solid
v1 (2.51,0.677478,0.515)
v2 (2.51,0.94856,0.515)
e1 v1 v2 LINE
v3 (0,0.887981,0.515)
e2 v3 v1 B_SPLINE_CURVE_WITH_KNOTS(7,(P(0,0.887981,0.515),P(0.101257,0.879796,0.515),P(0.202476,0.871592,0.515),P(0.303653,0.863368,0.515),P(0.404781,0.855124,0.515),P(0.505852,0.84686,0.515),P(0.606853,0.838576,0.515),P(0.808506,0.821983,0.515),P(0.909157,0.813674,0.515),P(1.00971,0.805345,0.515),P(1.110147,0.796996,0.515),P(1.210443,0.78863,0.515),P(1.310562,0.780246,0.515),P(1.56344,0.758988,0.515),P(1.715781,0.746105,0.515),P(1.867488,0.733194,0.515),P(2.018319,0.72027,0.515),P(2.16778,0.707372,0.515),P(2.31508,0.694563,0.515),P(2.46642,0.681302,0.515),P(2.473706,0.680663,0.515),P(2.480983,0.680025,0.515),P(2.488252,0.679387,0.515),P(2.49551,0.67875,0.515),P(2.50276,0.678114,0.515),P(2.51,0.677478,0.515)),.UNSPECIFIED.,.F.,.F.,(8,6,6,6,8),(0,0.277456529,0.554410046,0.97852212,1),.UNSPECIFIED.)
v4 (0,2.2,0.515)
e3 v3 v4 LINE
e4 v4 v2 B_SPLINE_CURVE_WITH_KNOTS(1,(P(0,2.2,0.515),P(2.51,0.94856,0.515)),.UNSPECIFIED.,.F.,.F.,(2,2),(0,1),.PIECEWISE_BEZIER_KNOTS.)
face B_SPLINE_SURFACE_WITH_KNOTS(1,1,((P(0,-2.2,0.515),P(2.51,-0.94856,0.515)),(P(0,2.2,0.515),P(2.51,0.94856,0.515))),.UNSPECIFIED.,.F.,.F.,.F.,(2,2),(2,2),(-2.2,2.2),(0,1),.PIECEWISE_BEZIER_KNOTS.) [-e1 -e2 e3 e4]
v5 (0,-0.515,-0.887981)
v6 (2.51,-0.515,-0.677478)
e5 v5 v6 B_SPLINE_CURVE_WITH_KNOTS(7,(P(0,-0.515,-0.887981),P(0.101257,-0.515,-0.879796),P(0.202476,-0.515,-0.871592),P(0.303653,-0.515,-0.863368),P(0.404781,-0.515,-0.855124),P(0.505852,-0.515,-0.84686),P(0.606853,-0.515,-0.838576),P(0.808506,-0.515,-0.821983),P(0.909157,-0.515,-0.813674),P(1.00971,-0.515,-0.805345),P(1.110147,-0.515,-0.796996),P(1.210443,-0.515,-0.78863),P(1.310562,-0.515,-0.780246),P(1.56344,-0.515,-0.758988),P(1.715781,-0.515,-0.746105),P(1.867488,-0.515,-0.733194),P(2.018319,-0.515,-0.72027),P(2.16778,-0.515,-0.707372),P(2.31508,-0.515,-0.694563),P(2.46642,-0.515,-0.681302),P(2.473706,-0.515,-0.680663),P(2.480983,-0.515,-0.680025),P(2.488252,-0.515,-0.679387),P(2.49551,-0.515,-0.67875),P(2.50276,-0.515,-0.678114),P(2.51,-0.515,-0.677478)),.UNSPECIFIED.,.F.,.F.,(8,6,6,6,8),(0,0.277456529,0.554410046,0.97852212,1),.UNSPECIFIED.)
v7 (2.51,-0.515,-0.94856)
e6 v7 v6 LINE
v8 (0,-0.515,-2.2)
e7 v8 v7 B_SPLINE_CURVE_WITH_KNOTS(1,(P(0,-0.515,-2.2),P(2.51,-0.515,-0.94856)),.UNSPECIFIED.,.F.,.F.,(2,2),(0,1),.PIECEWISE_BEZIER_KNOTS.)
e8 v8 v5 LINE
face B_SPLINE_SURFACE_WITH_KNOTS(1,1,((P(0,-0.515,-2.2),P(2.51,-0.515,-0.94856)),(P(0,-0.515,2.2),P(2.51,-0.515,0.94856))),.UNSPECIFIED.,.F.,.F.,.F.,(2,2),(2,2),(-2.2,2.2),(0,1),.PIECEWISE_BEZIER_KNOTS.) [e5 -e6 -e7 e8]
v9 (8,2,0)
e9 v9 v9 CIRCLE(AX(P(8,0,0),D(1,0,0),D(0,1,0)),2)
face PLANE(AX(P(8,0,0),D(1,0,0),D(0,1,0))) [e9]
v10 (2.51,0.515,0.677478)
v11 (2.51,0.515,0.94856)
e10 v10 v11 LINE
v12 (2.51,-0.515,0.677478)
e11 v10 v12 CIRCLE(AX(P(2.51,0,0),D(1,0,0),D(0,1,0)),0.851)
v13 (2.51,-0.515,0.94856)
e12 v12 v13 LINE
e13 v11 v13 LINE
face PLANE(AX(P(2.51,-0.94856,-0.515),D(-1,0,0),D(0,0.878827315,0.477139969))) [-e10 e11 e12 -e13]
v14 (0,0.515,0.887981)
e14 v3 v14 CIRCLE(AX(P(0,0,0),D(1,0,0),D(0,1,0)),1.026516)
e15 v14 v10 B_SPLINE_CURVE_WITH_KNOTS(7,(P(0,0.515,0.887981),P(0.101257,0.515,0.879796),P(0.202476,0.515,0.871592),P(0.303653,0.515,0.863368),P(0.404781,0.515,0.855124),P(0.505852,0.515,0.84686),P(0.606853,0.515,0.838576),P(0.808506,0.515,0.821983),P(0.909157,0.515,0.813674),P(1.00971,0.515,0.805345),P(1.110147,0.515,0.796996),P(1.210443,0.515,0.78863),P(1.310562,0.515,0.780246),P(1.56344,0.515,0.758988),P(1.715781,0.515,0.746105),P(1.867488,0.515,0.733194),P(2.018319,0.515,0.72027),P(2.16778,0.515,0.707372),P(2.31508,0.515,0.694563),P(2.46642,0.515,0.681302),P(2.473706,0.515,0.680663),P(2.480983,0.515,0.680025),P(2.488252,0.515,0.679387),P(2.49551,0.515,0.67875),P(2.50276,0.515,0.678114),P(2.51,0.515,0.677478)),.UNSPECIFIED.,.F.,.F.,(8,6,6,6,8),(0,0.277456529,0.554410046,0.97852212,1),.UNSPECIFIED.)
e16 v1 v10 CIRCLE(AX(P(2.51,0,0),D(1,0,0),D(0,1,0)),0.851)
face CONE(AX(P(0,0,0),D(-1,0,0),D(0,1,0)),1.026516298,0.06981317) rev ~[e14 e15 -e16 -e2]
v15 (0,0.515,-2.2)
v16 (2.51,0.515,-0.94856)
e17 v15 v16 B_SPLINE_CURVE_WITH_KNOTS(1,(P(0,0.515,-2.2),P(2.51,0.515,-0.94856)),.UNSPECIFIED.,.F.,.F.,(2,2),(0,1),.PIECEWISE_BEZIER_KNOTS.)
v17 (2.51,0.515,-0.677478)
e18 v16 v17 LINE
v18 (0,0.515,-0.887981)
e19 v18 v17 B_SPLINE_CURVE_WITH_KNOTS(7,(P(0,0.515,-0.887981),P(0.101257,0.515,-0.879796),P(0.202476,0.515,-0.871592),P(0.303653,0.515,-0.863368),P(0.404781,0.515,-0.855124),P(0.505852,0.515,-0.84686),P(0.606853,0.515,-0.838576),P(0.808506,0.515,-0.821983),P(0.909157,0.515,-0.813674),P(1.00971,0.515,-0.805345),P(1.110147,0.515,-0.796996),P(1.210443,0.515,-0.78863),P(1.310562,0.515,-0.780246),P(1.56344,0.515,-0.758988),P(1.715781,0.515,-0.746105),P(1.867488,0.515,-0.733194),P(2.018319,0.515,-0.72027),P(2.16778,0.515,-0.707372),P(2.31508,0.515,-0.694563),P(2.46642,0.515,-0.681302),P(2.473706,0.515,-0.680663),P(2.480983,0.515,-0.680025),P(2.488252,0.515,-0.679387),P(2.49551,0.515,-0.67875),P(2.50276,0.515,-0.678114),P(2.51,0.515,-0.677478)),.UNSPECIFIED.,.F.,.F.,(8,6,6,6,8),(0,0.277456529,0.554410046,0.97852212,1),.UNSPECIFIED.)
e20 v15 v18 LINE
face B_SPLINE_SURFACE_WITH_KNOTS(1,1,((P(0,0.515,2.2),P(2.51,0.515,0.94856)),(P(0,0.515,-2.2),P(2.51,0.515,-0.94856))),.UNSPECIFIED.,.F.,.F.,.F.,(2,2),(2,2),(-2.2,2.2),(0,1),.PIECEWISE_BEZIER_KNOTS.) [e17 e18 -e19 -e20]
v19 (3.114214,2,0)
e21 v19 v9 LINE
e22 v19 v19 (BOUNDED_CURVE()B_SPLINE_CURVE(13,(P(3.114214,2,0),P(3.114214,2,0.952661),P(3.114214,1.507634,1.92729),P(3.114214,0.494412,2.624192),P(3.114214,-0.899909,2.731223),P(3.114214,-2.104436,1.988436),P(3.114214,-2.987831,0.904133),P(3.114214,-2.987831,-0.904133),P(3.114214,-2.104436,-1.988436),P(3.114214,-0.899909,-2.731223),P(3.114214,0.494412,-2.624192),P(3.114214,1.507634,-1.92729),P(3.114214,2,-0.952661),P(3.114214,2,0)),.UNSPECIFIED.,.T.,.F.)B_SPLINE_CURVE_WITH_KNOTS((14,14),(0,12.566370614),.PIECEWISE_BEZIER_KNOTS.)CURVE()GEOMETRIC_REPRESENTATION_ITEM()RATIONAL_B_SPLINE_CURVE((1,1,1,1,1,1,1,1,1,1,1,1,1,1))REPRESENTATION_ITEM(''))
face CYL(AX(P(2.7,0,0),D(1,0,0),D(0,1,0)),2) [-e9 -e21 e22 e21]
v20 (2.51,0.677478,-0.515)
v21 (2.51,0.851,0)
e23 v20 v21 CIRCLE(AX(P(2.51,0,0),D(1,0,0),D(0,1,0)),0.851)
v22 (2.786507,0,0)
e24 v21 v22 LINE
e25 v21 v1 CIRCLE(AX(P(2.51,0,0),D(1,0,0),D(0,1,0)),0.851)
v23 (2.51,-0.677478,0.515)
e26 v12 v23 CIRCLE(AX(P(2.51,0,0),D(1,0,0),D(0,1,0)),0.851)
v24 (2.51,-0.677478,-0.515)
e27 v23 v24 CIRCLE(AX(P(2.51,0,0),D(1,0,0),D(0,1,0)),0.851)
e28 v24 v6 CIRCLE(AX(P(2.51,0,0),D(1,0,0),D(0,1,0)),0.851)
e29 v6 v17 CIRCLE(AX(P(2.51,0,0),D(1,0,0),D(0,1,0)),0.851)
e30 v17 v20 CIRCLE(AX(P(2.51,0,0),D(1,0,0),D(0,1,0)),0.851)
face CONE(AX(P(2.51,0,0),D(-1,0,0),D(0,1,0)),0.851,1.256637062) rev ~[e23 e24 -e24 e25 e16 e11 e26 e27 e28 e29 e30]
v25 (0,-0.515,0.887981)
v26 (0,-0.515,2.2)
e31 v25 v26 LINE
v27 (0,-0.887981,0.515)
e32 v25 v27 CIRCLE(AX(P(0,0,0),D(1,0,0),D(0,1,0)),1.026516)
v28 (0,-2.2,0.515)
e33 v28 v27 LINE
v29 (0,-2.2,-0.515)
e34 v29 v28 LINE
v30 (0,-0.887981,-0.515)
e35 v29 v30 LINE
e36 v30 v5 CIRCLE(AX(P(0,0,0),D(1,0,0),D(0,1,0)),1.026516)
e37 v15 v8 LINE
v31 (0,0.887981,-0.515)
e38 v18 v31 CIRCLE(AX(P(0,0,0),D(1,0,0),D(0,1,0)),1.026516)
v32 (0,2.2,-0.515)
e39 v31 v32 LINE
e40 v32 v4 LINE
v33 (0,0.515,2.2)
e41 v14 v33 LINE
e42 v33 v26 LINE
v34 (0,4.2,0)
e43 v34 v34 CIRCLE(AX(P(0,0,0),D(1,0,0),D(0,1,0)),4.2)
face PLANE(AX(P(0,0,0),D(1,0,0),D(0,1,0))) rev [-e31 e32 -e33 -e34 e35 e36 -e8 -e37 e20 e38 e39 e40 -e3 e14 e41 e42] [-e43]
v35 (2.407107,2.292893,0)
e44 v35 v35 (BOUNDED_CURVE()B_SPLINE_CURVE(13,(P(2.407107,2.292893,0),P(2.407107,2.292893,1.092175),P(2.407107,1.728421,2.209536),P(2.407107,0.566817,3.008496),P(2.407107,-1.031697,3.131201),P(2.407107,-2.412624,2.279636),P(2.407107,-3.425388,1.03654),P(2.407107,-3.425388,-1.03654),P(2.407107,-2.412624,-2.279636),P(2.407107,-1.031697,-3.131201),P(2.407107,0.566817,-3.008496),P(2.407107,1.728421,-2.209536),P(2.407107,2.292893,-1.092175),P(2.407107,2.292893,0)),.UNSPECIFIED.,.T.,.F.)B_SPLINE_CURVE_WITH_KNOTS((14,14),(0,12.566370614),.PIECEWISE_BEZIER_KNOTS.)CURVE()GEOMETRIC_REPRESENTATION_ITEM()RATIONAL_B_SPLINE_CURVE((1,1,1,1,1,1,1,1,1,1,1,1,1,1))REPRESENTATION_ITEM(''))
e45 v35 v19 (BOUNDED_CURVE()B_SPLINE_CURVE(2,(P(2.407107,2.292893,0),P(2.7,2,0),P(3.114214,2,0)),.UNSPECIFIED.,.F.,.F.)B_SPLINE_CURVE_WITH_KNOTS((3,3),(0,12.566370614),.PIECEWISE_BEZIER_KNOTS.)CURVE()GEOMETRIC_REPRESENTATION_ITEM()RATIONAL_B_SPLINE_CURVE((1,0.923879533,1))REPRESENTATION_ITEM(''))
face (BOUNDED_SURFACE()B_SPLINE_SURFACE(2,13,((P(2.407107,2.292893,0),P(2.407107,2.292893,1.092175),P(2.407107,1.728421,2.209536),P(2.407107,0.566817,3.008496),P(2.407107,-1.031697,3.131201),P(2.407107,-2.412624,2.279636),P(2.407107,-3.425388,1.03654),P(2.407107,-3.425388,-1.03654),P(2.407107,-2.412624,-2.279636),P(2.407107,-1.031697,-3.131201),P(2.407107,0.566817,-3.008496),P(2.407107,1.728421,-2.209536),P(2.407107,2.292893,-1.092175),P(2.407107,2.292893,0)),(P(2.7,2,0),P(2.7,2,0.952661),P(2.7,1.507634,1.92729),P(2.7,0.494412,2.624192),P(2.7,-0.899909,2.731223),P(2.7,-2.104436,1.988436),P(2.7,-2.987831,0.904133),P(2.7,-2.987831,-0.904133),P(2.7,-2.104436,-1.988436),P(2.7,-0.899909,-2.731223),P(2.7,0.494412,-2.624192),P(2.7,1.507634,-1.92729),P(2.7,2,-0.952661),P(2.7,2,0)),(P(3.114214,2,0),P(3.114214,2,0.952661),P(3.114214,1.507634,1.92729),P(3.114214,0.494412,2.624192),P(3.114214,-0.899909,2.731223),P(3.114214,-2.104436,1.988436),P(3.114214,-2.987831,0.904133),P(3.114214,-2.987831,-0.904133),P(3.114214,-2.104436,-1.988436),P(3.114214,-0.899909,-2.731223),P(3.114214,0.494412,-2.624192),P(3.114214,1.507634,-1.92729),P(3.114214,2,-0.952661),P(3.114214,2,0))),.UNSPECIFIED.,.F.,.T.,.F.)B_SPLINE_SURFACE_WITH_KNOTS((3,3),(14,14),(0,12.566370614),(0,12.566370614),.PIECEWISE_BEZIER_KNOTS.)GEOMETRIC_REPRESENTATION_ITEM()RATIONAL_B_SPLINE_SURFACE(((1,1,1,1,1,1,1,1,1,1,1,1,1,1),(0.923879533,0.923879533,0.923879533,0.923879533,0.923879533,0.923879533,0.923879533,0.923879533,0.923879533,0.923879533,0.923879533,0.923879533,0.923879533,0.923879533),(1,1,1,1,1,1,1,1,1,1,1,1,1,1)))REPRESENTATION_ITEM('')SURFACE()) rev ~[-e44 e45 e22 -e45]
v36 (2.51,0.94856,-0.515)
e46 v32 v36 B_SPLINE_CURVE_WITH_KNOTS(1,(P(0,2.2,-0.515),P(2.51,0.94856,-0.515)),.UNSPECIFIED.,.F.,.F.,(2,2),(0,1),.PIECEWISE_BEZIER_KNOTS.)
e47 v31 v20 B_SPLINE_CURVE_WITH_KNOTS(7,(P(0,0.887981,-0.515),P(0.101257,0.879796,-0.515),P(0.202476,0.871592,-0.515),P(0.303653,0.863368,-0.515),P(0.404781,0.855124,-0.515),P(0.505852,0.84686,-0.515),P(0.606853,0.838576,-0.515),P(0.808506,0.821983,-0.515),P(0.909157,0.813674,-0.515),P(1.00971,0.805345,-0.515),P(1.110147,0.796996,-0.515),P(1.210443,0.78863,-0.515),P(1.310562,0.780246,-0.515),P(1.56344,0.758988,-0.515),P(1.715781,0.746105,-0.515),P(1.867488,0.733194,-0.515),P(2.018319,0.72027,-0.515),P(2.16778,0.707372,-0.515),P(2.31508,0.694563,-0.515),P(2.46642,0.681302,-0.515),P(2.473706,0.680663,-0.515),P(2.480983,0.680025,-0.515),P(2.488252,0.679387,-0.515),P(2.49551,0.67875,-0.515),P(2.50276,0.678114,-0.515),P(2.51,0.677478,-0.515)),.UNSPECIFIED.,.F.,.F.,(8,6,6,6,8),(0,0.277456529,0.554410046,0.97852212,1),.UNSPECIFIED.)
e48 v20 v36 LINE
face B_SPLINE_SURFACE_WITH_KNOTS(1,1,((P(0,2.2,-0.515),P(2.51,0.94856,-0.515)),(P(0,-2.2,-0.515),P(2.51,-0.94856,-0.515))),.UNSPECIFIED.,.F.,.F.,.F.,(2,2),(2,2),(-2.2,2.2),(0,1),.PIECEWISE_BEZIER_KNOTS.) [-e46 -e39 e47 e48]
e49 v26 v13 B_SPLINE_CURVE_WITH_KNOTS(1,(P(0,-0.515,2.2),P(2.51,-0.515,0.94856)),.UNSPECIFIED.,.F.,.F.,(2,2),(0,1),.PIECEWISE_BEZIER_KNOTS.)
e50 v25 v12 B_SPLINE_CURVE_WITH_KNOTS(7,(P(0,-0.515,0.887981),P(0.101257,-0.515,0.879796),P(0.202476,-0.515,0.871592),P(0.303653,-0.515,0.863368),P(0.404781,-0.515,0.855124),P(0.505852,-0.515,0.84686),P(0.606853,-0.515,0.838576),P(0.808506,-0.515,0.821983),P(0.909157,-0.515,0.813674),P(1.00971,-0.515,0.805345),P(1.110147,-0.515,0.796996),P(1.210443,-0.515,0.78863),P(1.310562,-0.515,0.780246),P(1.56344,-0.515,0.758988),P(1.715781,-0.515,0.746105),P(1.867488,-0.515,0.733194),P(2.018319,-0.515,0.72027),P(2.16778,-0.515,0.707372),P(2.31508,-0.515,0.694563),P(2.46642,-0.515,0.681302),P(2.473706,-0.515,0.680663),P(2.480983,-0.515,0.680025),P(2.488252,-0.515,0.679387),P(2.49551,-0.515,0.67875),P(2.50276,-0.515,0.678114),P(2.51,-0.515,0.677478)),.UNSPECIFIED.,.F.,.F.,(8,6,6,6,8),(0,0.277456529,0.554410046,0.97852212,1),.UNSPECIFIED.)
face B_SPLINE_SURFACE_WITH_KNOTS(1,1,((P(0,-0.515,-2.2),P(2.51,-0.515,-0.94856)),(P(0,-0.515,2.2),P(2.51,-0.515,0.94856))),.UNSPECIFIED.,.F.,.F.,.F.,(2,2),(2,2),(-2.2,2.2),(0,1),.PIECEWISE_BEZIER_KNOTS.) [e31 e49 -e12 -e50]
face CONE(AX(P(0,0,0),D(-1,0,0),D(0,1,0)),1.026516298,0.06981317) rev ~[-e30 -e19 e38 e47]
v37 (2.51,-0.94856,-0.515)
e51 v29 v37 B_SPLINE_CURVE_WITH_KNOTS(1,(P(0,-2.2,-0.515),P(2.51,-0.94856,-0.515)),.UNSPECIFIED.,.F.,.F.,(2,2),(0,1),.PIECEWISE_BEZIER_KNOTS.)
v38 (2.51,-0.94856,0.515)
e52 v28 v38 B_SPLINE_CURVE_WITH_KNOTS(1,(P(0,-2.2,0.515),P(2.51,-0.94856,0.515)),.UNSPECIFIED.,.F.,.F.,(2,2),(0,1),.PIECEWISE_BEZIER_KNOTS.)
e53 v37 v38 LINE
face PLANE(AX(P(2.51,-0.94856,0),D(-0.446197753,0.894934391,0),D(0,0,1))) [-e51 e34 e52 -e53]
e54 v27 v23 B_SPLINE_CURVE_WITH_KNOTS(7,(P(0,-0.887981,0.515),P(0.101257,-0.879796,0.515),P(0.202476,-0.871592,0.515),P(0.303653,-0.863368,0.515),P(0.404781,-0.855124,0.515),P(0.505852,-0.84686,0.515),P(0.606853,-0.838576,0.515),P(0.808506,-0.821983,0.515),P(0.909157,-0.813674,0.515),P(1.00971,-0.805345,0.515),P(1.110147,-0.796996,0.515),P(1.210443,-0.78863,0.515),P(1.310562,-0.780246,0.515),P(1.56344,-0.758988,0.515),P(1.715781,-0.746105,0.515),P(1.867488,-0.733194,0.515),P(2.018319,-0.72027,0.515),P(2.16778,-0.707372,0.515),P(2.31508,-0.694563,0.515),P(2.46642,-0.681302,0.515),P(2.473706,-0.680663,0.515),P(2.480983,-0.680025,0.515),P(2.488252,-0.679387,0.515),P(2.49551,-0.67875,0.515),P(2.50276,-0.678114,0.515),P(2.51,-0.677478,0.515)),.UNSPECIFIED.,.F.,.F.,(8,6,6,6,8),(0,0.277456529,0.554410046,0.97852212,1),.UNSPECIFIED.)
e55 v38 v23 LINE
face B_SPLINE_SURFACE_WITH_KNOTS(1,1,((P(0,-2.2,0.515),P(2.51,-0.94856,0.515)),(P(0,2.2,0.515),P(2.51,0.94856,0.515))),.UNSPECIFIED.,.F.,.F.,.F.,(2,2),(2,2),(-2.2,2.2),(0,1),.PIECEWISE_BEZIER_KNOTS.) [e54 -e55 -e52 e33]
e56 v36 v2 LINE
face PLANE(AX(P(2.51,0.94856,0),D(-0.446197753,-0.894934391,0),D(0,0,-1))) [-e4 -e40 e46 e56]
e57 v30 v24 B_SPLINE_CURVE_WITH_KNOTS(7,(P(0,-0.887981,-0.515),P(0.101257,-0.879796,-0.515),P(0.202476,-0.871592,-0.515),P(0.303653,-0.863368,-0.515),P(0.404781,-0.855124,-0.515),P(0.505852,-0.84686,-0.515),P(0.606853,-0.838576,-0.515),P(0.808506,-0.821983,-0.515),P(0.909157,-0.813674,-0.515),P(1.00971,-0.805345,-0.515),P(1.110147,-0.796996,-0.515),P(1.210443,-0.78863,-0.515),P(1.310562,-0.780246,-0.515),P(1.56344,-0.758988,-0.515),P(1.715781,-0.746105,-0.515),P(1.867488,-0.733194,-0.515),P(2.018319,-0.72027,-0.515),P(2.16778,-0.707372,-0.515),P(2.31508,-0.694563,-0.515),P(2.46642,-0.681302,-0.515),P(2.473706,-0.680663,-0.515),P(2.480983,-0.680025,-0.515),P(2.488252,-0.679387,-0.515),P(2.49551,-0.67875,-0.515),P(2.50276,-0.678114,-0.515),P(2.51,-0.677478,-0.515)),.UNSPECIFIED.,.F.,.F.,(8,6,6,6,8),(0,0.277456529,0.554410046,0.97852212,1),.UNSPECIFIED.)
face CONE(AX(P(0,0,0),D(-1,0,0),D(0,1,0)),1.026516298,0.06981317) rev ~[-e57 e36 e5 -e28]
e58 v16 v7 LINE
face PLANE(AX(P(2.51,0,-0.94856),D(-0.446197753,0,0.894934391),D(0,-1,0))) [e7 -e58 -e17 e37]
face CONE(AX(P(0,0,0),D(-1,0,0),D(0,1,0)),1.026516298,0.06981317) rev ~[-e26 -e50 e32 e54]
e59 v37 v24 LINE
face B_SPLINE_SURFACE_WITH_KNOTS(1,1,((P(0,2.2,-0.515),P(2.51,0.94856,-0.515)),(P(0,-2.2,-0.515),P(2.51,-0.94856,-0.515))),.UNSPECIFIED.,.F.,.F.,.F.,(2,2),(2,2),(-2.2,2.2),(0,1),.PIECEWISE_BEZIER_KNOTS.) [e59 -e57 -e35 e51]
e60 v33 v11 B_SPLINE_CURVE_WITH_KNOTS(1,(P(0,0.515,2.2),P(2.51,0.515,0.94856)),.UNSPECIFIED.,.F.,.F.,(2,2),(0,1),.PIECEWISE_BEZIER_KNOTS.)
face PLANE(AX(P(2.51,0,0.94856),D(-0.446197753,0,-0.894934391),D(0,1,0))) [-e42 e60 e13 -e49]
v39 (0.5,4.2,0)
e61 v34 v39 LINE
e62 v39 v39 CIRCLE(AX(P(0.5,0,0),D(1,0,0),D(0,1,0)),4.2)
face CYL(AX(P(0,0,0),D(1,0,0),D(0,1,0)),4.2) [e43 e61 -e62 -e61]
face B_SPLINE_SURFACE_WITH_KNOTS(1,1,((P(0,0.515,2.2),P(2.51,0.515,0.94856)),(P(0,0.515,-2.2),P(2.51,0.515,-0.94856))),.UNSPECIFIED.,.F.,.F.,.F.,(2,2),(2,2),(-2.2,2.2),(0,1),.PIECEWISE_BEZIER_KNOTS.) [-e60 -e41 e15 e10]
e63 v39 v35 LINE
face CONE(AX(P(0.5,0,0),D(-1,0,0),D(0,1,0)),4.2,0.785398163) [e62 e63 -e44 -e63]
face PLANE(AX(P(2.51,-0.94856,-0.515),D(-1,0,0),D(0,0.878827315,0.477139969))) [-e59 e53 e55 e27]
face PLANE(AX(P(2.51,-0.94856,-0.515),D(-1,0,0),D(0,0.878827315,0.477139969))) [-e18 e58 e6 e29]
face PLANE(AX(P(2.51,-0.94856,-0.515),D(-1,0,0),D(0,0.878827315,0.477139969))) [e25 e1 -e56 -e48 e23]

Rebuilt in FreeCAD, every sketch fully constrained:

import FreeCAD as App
import Part
import Sketcher
Q = App.Units.Quantity


def edges_at(feature, points):
    """Names of the edges that pass closest to the given points."""
    edges = feature.Shape.Edges
    near = lambda p: min(range(len(edges)), key=lambda i: edges[i].distToShape(Part.Vertex(*p))[0])
    return sorted({f"Edge{near(p) + 1}" for p in points})


def add_polygon(sketch, points):
    """Adds a closed chain of lines whose ends are joined by coincident constraints."""
    first, n = sketch.GeometryCount, len(points)
    for a, b in zip(points, points[1:] + points[:1]):
        sketch.addGeometry(Part.LineSegment(App.Vector(*a, 0), App.Vector(*b, 0)), False)
    for i in range(n):
        sketch.addConstraint(Sketcher.Constraint("Coincident", first + i, 2, first + (i + 1) % n, 1))

doc = App.newDocument("Part")
body = doc.addObject("PartDesign::Body", "Body")

# Sketch on XY plane
sketch1 = body.newObject("Sketcher::SketchObject", "Sketch")
sketch1.AttachmentSupport = (doc.getObject("XY_Plane"), [""])
sketch1.MapMode = "FlatFace"
add_polygon(sketch1, [(0, 4.2), (0, 0), (8, 0), (8, 2), (2.7, 2), (0.5, 4.2)])  # lines 0-5
sketch1.addConstraint([
    Sketcher.Constraint("Vertical", 0),
    Sketcher.Constraint("Horizontal", 1),
    Sketcher.Constraint("Vertical", 2),
    Sketcher.Constraint("Horizontal", 3),
    Sketcher.Constraint("Horizontal", 5),
    Sketcher.Constraint("Coincident", 0, 2, -1, 1),
    Sketcher.Constraint("DistanceX", 1, 1, 1, 2, 8.0),
    Sketcher.Constraint("DistanceY", 2, 1, 2, 2, 2.0),
    Sketcher.Constraint("Angle", 4, Q("135 deg")),
    Sketcher.Constraint("DistanceX", 3, 2, 3, 1, 5.3),
    Sketcher.Constraint("DistanceX", 5, 2, 5, 1, 0.5),
])
revolution = body.newObject("PartDesign::Revolution", "Revolution")
revolution.Profile = sketch1
revolution.ReferenceAxis = (sketch1, ["H_Axis"])
revolution.Angle = 360
doc.recompute()

fillet = body.newObject("PartDesign::Fillet", "Fillet")
fillet.Base = (revolution, edges_at(revolution, [(2.7, -2, 0)]))
fillet.Radius = 1

# Sketch on YZ plane
sketch2 = body.newObject("Sketcher::SketchObject", "Sketch001")
sketch2.AttachmentSupport = (doc.getObject("YZ_Plane"), [""])
sketch2.MapMode = "FlatFace"
add_polygon(sketch2, [(2.2, -0.5), (-2.2, -0.5), (-2.2, 0.5), (2.2, 0.5)])  # lines 0-3
sketch2.addConstraint([
    Sketcher.Constraint("Horizontal", 0),
    Sketcher.Constraint("Vertical", 1),
    Sketcher.Constraint("Horizontal", 2),
    Sketcher.Constraint("Vertical", 3),
    Sketcher.Constraint("Symmetric", 0, 2, 2, 2, -1, 1),
    Sketcher.Constraint("DistanceX", 0, 2, 0, 1, 4.4),
    Sketcher.Constraint("DistanceY", 1, 1, 1, 2, 1.03),
])

# Sketch on YZ plane
sketch3 = body.newObject("Sketcher::SketchObject", "Sketch002")
sketch3.AttachmentSupport = (doc.getObject("YZ_Plane"), [""])
sketch3.MapMode = "FlatFace"
sketch3.AttachmentOffset = App.Placement(App.Vector(0, 0, 2.51), App.Rotation())
add_polygon(sketch3, [(0.9, -0.5), (-0.9, -0.5), (-0.9, 0.5), (0.9, 0.5)])  # lines 0-3
sketch3.addConstraint([
    Sketcher.Constraint("Horizontal", 0),
    Sketcher.Constraint("Vertical", 1),
    Sketcher.Constraint("Horizontal", 2),
    Sketcher.Constraint("Vertical", 3),
    Sketcher.Constraint("Symmetric", 0, 2, 2, 2, -1, 1),
    Sketcher.Constraint("DistanceY", 1, 1, 1, 2, 1.03),
    Sketcher.Constraint("DistanceX", 0, 2, 0, 1, 1.897121),
])

subtractiveloft = body.newObject("PartDesign::SubtractiveLoft", "SubtractiveLoft")
subtractiveloft.Profile = sketch2
subtractiveloft.Sections = [sketch3]
doc.recompute()

polarpattern = body.newObject("PartDesign::PolarPattern", "PolarPattern")
polarpattern.Originals = [subtractiveloft]
polarpattern.Axis = (doc.getObject("X_Axis"), [""])
polarpattern.Angle = 90
polarpattern.Occurrences = 2
body.Tip = polarpattern

# Sketch on XY plane
sketch4 = body.newObject("Sketcher::SketchObject", "Sketch003")
sketch4.AttachmentSupport = (doc.getObject("XY_Plane"), [""])
sketch4.MapMode = "FlatFace"
add_polygon(sketch4, [(0, 1), (0, 0), (2.8, 0), (2.5, 0.9)])  # lines 0-3
sketch4.addConstraint([
    Sketcher.Constraint("Vertical", 0),
    Sketcher.Constraint("Horizontal", 1),
    Sketcher.Constraint("Coincident", 0, 2, -1, 1),
    Sketcher.Constraint("Angle", 2, Q("108 deg")),
    Sketcher.Constraint("Angle", 3, Q("176 deg")),
    Sketcher.Constraint("DistanceX", -1, 1, 2, 2, 2.51),
    Sketcher.Constraint("DistanceY", -1, 1, 2, 2, 0.851),
])
groove = body.newObject("PartDesign::Groove", "Groove")
groove.Profile = sketch4
groove.ReferenceAxis = (sketch4, ["H_Axis"])
groove.Angle = 360

doc.recompute()
